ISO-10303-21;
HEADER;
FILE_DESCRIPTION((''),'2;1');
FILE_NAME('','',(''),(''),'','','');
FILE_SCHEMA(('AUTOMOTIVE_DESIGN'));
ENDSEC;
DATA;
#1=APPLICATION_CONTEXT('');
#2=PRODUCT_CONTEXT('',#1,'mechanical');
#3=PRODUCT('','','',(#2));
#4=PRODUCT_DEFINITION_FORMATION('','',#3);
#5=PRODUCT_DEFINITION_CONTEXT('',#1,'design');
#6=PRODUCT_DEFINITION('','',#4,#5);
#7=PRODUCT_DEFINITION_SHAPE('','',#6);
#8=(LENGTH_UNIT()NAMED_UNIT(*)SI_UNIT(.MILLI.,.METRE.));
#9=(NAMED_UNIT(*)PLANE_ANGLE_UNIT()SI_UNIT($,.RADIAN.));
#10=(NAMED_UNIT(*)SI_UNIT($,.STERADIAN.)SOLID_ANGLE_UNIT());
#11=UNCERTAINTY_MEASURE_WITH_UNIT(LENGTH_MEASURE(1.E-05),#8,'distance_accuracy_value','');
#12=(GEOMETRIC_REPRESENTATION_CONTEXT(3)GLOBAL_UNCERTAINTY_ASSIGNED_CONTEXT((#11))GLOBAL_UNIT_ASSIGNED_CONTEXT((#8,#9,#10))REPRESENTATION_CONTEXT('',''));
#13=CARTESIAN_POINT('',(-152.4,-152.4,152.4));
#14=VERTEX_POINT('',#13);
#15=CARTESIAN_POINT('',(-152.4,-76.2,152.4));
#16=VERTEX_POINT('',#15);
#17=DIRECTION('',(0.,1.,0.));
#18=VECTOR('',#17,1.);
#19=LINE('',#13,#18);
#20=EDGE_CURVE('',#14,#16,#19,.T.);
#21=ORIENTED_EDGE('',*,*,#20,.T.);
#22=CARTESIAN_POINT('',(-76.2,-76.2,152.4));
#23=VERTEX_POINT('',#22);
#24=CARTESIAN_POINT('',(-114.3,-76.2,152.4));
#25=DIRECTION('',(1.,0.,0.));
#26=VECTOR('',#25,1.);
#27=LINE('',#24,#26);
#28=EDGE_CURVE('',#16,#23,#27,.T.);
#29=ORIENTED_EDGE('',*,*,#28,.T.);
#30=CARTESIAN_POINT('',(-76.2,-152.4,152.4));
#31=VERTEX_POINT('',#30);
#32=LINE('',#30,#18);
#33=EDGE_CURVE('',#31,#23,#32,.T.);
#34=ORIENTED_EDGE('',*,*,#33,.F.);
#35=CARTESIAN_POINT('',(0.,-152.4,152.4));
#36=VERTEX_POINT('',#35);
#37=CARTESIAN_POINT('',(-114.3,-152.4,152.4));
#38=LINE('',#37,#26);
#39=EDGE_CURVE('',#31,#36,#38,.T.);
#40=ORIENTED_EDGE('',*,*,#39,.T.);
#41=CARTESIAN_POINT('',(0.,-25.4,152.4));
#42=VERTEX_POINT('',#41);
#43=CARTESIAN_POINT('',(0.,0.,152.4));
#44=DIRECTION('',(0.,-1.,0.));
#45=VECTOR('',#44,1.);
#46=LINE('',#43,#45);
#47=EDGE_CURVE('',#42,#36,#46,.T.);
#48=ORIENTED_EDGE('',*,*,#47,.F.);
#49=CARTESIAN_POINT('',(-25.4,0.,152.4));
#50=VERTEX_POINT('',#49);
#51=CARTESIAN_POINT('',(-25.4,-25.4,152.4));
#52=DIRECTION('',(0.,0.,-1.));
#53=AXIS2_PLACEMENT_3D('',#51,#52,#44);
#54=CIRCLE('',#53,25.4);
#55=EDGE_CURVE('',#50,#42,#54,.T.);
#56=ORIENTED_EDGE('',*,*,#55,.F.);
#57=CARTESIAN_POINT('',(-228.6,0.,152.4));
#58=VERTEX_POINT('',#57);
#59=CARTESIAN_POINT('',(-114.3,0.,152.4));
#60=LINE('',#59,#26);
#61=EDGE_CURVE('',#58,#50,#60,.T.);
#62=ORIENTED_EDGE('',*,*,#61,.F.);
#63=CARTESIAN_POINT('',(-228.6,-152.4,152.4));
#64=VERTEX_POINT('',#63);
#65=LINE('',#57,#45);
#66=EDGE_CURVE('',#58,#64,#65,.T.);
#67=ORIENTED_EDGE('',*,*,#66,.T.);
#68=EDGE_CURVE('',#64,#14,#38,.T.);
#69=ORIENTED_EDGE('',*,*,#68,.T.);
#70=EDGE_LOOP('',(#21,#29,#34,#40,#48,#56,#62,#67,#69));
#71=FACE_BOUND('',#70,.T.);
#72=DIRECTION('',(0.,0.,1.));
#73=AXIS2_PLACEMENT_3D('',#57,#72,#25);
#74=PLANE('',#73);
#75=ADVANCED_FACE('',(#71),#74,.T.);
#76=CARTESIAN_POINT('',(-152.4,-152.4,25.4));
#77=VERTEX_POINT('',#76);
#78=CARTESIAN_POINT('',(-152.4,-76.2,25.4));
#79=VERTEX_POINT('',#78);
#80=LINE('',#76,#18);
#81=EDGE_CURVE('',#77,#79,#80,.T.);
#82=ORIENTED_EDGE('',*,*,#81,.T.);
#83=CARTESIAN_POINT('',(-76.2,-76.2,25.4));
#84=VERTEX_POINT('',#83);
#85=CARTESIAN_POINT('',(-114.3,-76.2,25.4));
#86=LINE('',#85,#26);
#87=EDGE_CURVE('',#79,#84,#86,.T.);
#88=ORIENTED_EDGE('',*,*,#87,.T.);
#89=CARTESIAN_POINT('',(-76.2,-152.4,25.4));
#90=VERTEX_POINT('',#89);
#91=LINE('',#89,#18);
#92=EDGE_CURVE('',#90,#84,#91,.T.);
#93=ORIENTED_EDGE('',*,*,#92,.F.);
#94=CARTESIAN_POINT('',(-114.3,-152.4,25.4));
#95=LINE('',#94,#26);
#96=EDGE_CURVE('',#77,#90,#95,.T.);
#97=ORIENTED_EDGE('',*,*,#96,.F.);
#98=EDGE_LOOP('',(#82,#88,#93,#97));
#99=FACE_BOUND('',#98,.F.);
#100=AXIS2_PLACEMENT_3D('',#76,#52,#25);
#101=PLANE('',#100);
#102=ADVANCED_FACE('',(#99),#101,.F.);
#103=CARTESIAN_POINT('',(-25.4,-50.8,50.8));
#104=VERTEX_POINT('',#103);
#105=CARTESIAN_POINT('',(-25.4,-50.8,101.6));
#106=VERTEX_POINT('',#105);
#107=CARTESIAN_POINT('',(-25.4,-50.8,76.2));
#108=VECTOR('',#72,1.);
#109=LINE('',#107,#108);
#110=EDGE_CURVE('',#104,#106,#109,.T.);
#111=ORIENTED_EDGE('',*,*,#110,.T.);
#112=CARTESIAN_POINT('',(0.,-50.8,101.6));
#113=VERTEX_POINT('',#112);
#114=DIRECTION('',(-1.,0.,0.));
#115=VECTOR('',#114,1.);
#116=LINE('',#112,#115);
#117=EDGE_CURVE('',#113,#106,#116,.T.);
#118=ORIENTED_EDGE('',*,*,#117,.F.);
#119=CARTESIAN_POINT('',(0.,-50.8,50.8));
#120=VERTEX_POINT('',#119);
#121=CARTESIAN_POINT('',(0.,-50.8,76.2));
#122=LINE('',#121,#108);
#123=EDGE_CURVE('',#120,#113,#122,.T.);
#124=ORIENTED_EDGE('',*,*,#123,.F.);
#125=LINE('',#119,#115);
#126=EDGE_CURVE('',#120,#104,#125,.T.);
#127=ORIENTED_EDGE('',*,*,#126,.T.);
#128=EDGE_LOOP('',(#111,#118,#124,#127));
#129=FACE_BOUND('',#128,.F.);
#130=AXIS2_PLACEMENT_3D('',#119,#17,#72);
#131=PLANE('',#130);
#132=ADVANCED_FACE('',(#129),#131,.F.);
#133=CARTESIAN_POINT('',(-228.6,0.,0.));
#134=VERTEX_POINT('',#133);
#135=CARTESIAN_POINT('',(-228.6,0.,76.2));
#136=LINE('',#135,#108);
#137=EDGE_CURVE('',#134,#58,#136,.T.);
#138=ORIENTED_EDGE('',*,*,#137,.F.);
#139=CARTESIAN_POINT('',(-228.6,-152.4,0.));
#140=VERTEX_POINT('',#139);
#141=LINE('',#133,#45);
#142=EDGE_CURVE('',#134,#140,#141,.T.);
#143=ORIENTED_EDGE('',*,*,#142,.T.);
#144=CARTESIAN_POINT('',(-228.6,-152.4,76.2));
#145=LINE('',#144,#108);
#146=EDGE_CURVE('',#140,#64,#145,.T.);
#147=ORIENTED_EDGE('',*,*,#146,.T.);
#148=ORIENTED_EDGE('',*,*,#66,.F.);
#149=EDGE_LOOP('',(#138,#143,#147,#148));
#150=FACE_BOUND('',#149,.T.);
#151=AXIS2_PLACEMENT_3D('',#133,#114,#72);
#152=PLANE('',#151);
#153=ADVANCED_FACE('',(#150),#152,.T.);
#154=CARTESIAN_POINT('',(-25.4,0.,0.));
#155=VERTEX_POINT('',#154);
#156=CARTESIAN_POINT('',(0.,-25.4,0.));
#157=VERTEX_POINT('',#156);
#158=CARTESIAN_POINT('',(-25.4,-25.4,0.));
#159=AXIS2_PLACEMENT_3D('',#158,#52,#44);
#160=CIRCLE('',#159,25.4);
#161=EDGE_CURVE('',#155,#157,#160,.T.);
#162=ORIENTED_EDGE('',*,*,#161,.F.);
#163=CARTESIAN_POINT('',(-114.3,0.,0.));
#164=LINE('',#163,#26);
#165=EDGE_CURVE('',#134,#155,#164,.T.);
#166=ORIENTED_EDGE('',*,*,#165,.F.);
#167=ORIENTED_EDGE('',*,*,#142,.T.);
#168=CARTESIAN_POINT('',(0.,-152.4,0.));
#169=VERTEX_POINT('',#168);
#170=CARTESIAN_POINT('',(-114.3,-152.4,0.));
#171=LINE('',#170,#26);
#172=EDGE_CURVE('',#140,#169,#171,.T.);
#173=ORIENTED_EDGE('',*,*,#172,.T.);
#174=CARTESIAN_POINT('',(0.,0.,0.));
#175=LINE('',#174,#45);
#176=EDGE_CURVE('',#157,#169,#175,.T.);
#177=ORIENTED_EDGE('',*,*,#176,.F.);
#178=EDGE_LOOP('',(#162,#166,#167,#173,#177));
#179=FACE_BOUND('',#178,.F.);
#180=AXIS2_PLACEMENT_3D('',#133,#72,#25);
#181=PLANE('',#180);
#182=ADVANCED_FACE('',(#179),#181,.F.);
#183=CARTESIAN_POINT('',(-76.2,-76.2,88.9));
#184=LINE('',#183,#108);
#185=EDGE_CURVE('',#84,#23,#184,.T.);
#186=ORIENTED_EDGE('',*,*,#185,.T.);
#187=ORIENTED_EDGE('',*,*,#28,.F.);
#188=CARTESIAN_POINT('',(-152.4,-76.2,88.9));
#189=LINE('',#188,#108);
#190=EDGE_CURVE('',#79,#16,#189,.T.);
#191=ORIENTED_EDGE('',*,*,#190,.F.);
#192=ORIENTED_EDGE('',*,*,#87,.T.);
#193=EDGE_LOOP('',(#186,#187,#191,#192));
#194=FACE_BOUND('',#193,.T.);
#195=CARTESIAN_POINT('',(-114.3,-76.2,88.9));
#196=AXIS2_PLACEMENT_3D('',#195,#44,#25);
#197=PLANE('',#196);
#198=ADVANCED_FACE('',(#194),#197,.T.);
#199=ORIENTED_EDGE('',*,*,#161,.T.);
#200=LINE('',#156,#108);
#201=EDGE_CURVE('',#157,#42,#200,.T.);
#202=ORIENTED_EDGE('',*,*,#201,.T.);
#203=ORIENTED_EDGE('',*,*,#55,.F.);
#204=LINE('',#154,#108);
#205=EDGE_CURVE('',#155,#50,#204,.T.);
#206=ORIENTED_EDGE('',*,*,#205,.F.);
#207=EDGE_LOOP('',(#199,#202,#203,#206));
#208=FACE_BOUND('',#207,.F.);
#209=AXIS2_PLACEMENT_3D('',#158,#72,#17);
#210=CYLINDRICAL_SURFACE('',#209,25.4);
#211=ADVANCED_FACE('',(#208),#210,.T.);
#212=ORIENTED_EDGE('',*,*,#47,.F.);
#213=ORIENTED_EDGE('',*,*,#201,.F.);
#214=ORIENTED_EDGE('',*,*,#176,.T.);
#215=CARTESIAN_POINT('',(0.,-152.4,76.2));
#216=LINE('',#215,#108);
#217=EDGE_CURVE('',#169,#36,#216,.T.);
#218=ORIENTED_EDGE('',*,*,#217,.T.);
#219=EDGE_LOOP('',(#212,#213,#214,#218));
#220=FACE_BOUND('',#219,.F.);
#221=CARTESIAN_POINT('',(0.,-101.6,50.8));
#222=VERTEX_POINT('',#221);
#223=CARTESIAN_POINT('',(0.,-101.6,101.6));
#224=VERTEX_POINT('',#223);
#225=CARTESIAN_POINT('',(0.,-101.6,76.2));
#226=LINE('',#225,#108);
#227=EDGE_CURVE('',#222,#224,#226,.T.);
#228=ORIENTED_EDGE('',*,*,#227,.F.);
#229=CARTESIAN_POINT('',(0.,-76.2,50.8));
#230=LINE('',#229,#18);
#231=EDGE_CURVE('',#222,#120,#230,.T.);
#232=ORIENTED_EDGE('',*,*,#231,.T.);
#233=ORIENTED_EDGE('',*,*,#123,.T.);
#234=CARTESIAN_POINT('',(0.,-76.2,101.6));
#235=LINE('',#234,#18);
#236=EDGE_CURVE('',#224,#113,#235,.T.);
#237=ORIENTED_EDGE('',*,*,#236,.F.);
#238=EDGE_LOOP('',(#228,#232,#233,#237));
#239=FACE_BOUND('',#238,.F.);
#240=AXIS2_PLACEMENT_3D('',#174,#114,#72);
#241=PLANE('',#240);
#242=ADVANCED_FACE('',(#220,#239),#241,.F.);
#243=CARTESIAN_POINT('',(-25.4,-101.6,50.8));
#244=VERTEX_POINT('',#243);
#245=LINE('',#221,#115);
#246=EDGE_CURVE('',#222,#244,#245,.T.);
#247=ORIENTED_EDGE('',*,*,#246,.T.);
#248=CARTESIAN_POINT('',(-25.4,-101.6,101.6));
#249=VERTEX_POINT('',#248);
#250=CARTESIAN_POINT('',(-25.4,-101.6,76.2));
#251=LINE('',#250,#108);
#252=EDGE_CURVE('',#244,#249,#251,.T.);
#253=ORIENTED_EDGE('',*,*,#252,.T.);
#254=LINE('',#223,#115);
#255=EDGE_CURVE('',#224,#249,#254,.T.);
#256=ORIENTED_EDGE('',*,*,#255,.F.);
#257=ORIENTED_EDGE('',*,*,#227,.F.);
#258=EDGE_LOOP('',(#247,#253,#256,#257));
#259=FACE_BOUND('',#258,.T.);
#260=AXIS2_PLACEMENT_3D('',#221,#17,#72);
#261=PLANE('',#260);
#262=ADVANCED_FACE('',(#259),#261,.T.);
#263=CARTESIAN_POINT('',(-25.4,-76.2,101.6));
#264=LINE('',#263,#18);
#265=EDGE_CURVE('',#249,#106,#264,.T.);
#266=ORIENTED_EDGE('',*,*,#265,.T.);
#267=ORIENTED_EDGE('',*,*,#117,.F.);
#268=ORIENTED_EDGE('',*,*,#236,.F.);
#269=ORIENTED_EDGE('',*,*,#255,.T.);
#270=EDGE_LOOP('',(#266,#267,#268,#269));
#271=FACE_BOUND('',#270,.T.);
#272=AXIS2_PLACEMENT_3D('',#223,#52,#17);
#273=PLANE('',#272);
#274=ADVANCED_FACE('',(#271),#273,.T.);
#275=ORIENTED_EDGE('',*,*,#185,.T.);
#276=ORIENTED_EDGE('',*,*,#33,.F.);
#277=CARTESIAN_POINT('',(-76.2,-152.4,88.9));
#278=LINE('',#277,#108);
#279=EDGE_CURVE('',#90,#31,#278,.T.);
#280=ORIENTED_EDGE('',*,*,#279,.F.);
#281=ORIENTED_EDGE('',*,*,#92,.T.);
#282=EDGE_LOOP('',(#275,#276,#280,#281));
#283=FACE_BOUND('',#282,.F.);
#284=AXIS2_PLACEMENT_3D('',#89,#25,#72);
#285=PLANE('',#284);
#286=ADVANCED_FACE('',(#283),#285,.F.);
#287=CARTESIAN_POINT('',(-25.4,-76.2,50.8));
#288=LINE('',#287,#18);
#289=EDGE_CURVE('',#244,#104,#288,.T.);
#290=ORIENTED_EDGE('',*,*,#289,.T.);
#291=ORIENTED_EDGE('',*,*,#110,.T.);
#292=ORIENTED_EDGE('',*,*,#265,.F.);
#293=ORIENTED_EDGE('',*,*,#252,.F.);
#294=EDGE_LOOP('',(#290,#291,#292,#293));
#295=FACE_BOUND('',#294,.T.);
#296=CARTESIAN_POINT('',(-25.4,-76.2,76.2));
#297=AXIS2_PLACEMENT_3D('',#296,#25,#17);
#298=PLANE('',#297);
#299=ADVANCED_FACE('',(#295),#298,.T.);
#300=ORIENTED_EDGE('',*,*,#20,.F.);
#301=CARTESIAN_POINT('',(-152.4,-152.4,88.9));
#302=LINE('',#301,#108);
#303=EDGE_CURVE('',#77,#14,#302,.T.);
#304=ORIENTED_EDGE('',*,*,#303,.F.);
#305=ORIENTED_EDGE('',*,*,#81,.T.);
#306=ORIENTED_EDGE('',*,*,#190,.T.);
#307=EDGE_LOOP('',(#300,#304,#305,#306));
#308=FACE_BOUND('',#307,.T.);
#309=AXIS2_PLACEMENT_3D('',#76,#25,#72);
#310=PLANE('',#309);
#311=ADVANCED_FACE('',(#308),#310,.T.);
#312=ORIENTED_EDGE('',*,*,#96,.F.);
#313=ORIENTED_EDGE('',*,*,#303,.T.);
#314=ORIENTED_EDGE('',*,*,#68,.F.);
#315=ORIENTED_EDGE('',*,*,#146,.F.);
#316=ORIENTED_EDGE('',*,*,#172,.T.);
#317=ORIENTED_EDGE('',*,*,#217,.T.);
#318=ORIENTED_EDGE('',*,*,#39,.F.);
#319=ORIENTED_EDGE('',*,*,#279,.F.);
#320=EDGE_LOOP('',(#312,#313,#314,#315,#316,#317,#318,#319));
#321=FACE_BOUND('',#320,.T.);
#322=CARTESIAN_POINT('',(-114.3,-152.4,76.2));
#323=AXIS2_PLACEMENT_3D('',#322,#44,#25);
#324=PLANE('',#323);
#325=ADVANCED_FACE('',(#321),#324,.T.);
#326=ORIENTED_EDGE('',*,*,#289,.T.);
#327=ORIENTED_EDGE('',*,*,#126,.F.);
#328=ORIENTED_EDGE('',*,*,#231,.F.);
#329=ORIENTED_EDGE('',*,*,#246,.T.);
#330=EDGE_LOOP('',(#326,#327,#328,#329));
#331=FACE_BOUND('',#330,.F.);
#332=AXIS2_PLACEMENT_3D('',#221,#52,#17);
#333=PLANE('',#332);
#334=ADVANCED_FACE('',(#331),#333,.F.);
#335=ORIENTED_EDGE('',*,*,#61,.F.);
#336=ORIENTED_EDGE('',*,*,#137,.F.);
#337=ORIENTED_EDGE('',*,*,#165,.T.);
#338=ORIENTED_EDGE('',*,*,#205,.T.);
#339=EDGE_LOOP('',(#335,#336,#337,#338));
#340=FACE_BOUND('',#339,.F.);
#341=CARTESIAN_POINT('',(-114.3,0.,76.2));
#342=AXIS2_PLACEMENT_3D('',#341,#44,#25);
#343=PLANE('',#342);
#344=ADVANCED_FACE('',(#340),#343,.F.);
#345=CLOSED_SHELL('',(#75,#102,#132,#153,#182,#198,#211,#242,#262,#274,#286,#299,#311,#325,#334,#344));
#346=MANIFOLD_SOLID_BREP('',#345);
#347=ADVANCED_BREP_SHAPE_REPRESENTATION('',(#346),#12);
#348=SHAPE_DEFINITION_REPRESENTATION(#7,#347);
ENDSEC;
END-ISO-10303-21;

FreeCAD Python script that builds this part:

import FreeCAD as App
import Part
import Sketcher

V = App.Vector
Q = App.Units.Quantity


def edges_at(feature, points):
    """Names of the edges that pass closest to the given points."""
    edges = feature.Shape.Edges
    near = lambda p: min(range(len(edges)), key=lambda i: edges[i].distToShape(Part.Vertex(*p))[0])
    return sorted({f"Edge{near(p) + 1}" for p in points})


def add_polygon(sketch, points):
    """Adds a closed chain of lines whose ends are joined by coincident constraints."""
    first, n = sketch.GeometryCount, len(points)
    for a, b in zip(points, points[1:] + points[:1]):
        sketch.addGeometry(Part.LineSegment(App.Vector(*a, 0), App.Vector(*b, 0)), False)
    for i in range(n):
        sketch.addConstraint(Sketcher.Constraint("Coincident", first + i, 2, first + (i + 1) % n, 1))

doc = App.newDocument("Part")
body = doc.addObject("PartDesign::Body", "Body")

# Sketch on XZ plane
sketch1 = doc.addObject("Sketcher::SketchObject", "Sketch")
body.addObject(sketch1)
sketch1.AttachmentSupport = (doc.XZ_Plane, [""])
sketch1.MapMode = "FlatFace"
add_polygon(sketch1, [(-229, 152), (-229, 0), (0, 0), (0, 152)])  # lines 0-3
sketch1.addConstraint([
    Sketcher.Constraint("Vertical", 0),
    Sketcher.Constraint("Horizontal", 1),
    Sketcher.Constraint("Vertical", 2),
    Sketcher.Constraint("Horizontal", 3),
    Sketcher.Constraint("Coincident", 1, 2, -1, 1),
    Sketcher.Constraint("DistanceX", 1, 1, 1, 2, Q("9 in")),
    Sketcher.Constraint("DistanceY", 0, 2, 0, 1, Q("6 in")),
])
pad1 = doc.addObject("PartDesign::Pad", "Pad")
body.addObject(pad1)
pad1.Profile = sketch1
pad1.Length = Q("6 in")

# Sketch on XZ plane
sketch2 = doc.addObject("Sketcher::SketchObject", "Sketch001")
body.addObject(sketch2)
sketch2.AttachmentSupport = (doc.XZ_Plane, [""])
sketch2.MapMode = "FlatFace"
sketch2.AttachmentOffset = App.Placement(V(0, 0, 6 * 25.4), App.Rotation())
add_polygon(sketch2, [(-152, 152), (-152, 25), (-76, 25), (-76, 152)])  # lines 0-3
sketch2.addConstraint([
    Sketcher.Constraint("Vertical", 0),
    Sketcher.Constraint("Horizontal", 1),
    Sketcher.Constraint("Vertical", 2),
    Sketcher.Constraint("Horizontal", 3),
    Sketcher.Constraint("DistanceX", 1, 1, 1, 2, Q("3 in")),
    Sketcher.Constraint("DistanceY", 0, 2, 0, 1, Q("5 in")),
    Sketcher.Constraint("DistanceX", 0, 2, -1, 1, Q("6 in")),
    Sketcher.Constraint("DistanceY", -1, 1, 0, 2, Q("1 in")),
])
pocket1 = doc.addObject("PartDesign::Pocket", "Pocket")
body.addObject(pocket1)
pocket1.Profile = sketch2
pocket1.Length = Q("3 in")

# Sketch on YZ plane
sketch3 = doc.addObject("Sketcher::SketchObject", "Sketch002")
body.addObject(sketch3)
sketch3.AttachmentSupport = (doc.YZ_Plane, [""])
sketch3.MapMode = "FlatFace"
add_polygon(sketch3, [(-102, 102), (-102, 51), (-51, 51), (-51, 102)])  # lines 0-3
sketch3.addConstraint([
    Sketcher.Constraint("Vertical", 0),
    Sketcher.Constraint("Horizontal", 1),
    Sketcher.Constraint("Vertical", 2),
    Sketcher.Constraint("Horizontal", 3),
    Sketcher.Constraint("Equal", 3, 0),
    Sketcher.Constraint("DistanceX", 1, 1, 1, 2, Q("2 in")),
    Sketcher.Constraint("DistanceX", 0, 2, -1, 1, Q("4 in")),
    Sketcher.Constraint("DistanceY", -1, 1, 0, 2, Q("2 in")),
])
pocket2 = doc.addObject("PartDesign::Pocket", "Pocket001")
body.addObject(pocket2)
pocket2.Profile = sketch3
pocket2.Length = Q("1 in")
doc.recompute()

fillet = doc.addObject("PartDesign::Fillet", "Fillet")
body.addObject(fillet)
fillet.Base = (pocket2, edges_at(pocket2, [(0, 0, 76.2)]))
fillet.Radius = Q("1 in")

doc.recompute()
